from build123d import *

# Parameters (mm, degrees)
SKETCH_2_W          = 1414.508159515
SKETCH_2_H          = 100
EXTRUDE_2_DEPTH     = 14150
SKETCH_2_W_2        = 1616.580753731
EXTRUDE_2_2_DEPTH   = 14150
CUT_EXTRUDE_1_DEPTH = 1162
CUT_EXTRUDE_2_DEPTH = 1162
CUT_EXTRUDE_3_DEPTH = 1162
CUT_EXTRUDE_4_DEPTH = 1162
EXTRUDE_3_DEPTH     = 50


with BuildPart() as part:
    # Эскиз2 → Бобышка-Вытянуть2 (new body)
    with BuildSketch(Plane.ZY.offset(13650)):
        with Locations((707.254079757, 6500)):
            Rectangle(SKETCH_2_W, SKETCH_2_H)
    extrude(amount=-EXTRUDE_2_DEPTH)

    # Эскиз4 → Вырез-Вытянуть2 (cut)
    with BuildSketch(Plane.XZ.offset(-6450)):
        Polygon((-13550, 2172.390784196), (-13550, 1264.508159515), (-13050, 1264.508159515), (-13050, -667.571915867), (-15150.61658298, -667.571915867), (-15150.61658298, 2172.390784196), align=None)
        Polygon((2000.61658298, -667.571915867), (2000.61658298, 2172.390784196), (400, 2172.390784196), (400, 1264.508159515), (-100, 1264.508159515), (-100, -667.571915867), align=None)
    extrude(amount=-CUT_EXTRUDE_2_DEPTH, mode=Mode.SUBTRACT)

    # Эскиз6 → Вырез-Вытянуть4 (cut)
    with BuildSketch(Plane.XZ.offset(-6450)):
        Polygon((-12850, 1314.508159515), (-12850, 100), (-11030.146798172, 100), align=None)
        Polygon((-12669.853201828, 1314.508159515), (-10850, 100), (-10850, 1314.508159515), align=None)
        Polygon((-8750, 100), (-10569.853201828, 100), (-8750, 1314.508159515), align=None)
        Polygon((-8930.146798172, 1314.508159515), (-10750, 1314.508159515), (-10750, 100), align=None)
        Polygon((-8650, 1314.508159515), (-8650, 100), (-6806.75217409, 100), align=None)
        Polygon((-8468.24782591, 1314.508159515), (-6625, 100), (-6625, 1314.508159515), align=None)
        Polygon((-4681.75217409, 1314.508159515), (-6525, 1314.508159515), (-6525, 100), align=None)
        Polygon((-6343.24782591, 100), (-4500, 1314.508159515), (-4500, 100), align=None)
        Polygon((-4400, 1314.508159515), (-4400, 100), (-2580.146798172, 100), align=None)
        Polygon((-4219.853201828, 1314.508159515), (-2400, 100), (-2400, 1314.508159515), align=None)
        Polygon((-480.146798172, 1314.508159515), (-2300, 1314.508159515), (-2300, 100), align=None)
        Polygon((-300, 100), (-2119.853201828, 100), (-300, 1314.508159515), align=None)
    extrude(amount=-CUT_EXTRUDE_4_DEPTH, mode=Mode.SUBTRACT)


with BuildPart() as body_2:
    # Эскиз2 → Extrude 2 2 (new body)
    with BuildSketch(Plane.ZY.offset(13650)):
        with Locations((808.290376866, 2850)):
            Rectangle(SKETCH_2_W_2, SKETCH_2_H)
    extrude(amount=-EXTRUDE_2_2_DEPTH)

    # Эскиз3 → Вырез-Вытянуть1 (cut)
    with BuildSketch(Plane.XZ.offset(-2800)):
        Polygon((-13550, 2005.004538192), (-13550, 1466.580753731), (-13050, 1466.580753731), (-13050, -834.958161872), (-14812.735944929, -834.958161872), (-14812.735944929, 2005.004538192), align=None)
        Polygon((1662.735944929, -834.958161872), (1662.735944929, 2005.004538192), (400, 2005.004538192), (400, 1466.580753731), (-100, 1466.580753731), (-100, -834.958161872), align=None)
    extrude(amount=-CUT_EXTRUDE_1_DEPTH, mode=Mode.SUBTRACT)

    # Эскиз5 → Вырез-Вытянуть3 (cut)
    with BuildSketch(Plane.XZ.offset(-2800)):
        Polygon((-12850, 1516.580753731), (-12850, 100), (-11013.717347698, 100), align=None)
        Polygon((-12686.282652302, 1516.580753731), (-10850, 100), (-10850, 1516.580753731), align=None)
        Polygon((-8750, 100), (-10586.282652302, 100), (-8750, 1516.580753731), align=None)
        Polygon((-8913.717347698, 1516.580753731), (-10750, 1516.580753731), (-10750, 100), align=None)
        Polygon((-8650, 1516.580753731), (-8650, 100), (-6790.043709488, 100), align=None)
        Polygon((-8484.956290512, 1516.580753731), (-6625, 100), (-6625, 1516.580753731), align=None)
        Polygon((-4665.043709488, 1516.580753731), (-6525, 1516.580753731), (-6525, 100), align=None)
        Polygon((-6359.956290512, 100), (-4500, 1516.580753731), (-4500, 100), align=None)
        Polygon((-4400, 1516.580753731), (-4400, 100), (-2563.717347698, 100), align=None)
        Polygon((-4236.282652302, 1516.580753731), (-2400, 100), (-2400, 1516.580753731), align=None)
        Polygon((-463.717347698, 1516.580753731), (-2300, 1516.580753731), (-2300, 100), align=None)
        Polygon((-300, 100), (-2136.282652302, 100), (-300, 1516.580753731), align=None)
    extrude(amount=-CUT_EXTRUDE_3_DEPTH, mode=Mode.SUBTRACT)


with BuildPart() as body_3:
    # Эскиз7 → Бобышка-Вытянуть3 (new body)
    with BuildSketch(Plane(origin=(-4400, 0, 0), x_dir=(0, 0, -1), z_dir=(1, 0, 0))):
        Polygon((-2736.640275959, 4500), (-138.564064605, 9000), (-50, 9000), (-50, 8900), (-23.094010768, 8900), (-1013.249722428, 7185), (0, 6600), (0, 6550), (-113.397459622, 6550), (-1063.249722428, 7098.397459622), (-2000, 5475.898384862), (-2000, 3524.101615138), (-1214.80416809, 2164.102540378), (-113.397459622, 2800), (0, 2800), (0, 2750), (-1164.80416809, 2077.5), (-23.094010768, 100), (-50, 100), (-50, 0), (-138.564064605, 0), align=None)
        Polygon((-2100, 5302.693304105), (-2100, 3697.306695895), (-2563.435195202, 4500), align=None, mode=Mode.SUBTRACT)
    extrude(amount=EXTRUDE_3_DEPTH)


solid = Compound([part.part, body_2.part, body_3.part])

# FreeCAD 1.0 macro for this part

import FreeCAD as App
import Part
import Sketcher

V = App.Vector
Q = App.Units.Quantity

doc = App.newDocument("Part")
body = doc.addObject("PartDesign::Body", "Body")

# Sketch on YZ plane
sketch1 = body.newObject("Sketcher::SketchObject", "Sketch")
sketch1.AttachmentSupport = (doc.getObject("YZ_Plane"), [""])
sketch1.MapMode = "FlatFace"
sketch1.AttachmentOffset = App.Placement(V(0, 0, -13650), App.Rotation())
sketch1.addGeometry([
    Part.LineSegment(V(6550, 0, 0), V(6450, 0, 0)),
    Part.LineSegment(V(6450, 0, 0), V(6450, 1415, 0)),
    Part.LineSegment(V(6450, 1415, 0), V(6550, 1415, 0)),
    Part.LineSegment(V(6550, 1415, 0), V(6550, 0, 0)),
], False)
sketch1.addConstraint([
    Sketcher.Constraint("Coincident", 0, 2, 1, 1),
    Sketcher.Constraint("Coincident", 1, 2, 2, 1),
    Sketcher.Constraint("Coincident", 2, 2, 3, 1),
    Sketcher.Constraint("Coincident", 3, 2, 0, 1),
    Sketcher.Constraint("Horizontal", 0),
    Sketcher.Constraint("Vertical", 1),
    Sketcher.Constraint("Horizontal", 2),
    Sketcher.Constraint("Vertical", 3),
    Sketcher.Constraint("PointOnObject", 0, 2, -1),
    Sketcher.Constraint("DistanceX", 0, 2, 0, 1, Q("100 mm")),
    Sketcher.Constraint("DistanceX", -1, 1, 0, 2, Q("6450 mm")),
    Sketcher.Constraint("DistanceY", 1, 1, 1, 2, Q("1414.50816 mm")),
])
pad1 = body.newObject("PartDesign::Pad", "Pad")
pad1.Profile = sketch1
pad1.Length = 14150

# Sketch on XZ plane
sketch2 = body.newObject("Sketcher::SketchObject", "Sketch001")
sketch2.AttachmentSupport = (doc.getObject("XZ_Plane"), [""])
sketch2.MapMode = "FlatFace"
sketch2.AttachmentOffset = App.Placement(V(0, 0, -6450), App.Rotation())
sketch2.addGeometry([
    Part.LineSegment(V(-13550, 1265, 0), V(-13550, 2172, 0)),  # 0
    Part.LineSegment(V(-13550, 2172, 0), V(-15151, 2172, 0)),  # 1
    Part.LineSegment(V(-15151, 2172, 0), V(-15151, -668, 0)),  # 2
    Part.LineSegment(V(-15151, -668, 0), V(-13050, -668, 0)),  # 3
    Part.LineSegment(V(-13050, -668, 0), V(-13050, 1265, 0)),  # 4
    Part.LineSegment(V(-13050, 1265, 0), V(-13550, 1265, 0)),  # 5
    Part.LineSegment(V(2001, -668, 0), V(2001, 2172, 0)),  # 6
    Part.LineSegment(V(2001, 2172, 0), V(400, 2172, 0)),  # 7
    Part.LineSegment(V(400, 2172, 0), V(400, 1265, 0)),  # 8
    Part.LineSegment(V(400, 1265, 0), V(-100, 1265, 0)),  # 9
    Part.LineSegment(V(-100, 1265, 0), V(-100, -668, 0)),  # 10
    Part.LineSegment(V(-100, -668, 0), V(2001, -668, 0)),  # 11
], False)
sketch2.addConstraint([
    Sketcher.Constraint("Coincident", 0, 2, 1, 1),
    Sketcher.Constraint("Coincident", 1, 2, 2, 1),
    Sketcher.Constraint("Coincident", 2, 2, 3, 1),
    Sketcher.Constraint("Coincident", 3, 2, 4, 1),
    Sketcher.Constraint("Coincident", 4, 2, 5, 1),
    Sketcher.Constraint("Coincident", 5, 2, 0, 1),
    Sketcher.Constraint("Coincident", 6, 2, 7, 1),
    Sketcher.Constraint("Coincident", 7, 2, 8, 1),
    Sketcher.Constraint("Coincident", 8, 2, 9, 1),
    Sketcher.Constraint("Coincident", 9, 2, 10, 1),
    Sketcher.Constraint("Coincident", 10, 2, 11, 1),
    Sketcher.Constraint("Coincident", 11, 2, 6, 1),
    Sketcher.Constraint("Vertical", 0),
    Sketcher.Constraint("Horizontal", 1),
    Sketcher.Constraint("Vertical", 2),
    Sketcher.Constraint("Horizontal", 3),
    Sketcher.Constraint("Vertical", 4),
    Sketcher.Constraint("Horizontal", 5),
    Sketcher.Constraint("Vertical", 6),
    Sketcher.Constraint("Horizontal", 7),
    Sketcher.Constraint("Vertical", 8),
    Sketcher.Constraint("Horizontal", 9),
    Sketcher.Constraint("Vertical", 10),
    Sketcher.Constraint("Horizontal", 11),
    Sketcher.Constraint("Horizontal", 1, 2, 6, 2),
    Sketcher.Constraint("Horizontal", 5, 2, 8, 2),
    Sketcher.Constraint("Horizontal", 3, 2, 10, 2),
    Sketcher.Constraint("Equal", 1, 7),
    Sketcher.Constraint("Equal", 5, 9),
    Sketcher.Constraint("DistanceX", 5, 2, 5, 1, Q("500 mm")),
    Sketcher.Constraint("DistanceX", 0, 2, -1, 1, Q("13550 mm")),
    Sketcher.Constraint("DistanceX", -1, 1, 7, 2, Q("400 mm")),
    Sketcher.Constraint("DistanceY", 2, 2, 2, 1, Q("2839.9627 mm")),
    Sketcher.Constraint("DistanceX", 1, 2, 1, 1, Q("1600.616583 mm")),
    Sketcher.Constraint("DistanceY", 0, 1, 0, 2, Q("907.882625 mm")),
    Sketcher.Constraint("DistanceY", -1, 1, 4, 2, Q("1264.50816 mm")),
])
pocket1 = body.newObject("PartDesign::Pocket", "Pocket")
pocket1.Profile = sketch2
pocket1.Length = 1162

# Sketch on XZ plane
sketch3 = body.newObject("Sketcher::SketchObject", "Sketch002")
sketch3.AttachmentSupport = (doc.getObject("XZ_Plane"), [""])
sketch3.MapMode = "FlatFace"
sketch3.AttachmentOffset = App.Placement(V(0, 0, -6450), App.Rotation())
sketch3.addGeometry([
    Part.LineSegment(V(-12850, 1315, 0), V(-12850, 100, 0)),  # 0
    Part.LineSegment(V(-12850, 100, 0), V(-11030, 100, 0)),  # 1
    Part.LineSegment(V(-11030, 100, 0), V(-12850, 1315, 0)),  # 2
    Part.LineSegment(V(-12670, 1315, 0), V(-10850, 100, 0)),  # 3
    Part.LineSegment(V(-10850, 100, 0), V(-10850, 1315, 0)),  # 4
    Part.LineSegment(V(-10850, 1315, 0), V(-12670, 1315, 0)),  # 5
    Part.LineSegment(V(-10570, 100, 0), V(-8750, 100, 0)),  # 6
    Part.LineSegment(V(-8750, 100, 0), V(-8750, 1315, 0)),  # 7
    Part.LineSegment(V(-8750, 1315, 0), V(-10570, 100, 0)),  # 8
    Part.LineSegment(V(-8930, 1315, 0), V(-10750, 1315, 0)),  # 9
    Part.LineSegment(V(-10750, 1315, 0), V(-10750, 100, 0)),  # 10
    Part.LineSegment(V(-10750, 100, 0), V(-8930, 1315, 0)),  # 11
    Part.LineSegment(V(-8650, 1315, 0), V(-8650, 100, 0)),  # 12
    Part.LineSegment(V(-8650, 100, 0), V(-6807, 100, 0)),  # 13
    Part.LineSegment(V(-6807, 100, 0), V(-8650, 1315, 0)),  # 14
    Part.LineSegment(V(-8468, 1315, 0), V(-6625, 100, 0)),  # 15
    Part.LineSegment(V(-6625, 100, 0), V(-6625, 1315, 0)),  # 16
    Part.LineSegment(V(-6625, 1315, 0), V(-8468, 1315, 0)),  # 17
    Part.LineSegment(V(-4682, 1315, 0), V(-6525, 1315, 0)),  # 18
    Part.LineSegment(V(-6525, 1315, 0), V(-6525, 100, 0)),  # 19
    Part.LineSegment(V(-6525, 100, 0), V(-4682, 1315, 0)),  # 20
    Part.LineSegment(V(-4500, 1315, 0), V(-6343, 100, 0)),  # 21
    Part.LineSegment(V(-6343, 100, 0), V(-4500, 100, 0)),  # 22
    Part.LineSegment(V(-4500, 100, 0), V(-4500, 1315, 0)),  # 23
    Part.LineSegment(V(-4400, 1315, 0), V(-4400, 100, 0)),  # 24
    Part.LineSegment(V(-4400, 100, 0), V(-2580, 100, 0)),  # 25
    Part.LineSegment(V(-2580, 100, 0), V(-4400, 1315, 0)),  # 26
    Part.LineSegment(V(-4220, 1315, 0), V(-2400, 100, 0)),  # 27
    Part.LineSegment(V(-2400, 100, 0), V(-2400, 1315, 0)),  # 28
    Part.LineSegment(V(-2400, 1315, 0), V(-4220, 1315, 0)),  # 29
    Part.LineSegment(V(-480, 1315, 0), V(-2300, 1315, 0)),  # 30
    Part.LineSegment(V(-2300, 1315, 0), V(-2300, 100, 0)),  # 31
    Part.LineSegment(V(-2300, 100, 0), V(-480, 1315, 0)),  # 32
    Part.LineSegment(V(-2120, 100, 0), V(-300, 100, 0)),  # 33
    Part.LineSegment(V(-300, 100, 0), V(-300, 1315, 0)),  # 34
    Part.LineSegment(V(-300, 1315, 0), V(-2120, 100, 0)),  # 35
], False)
sketch3.addConstraint([
    Sketcher.Constraint("Coincident", 0, 2, 1, 1),
    Sketcher.Constraint("Coincident", 1, 2, 2, 1),
    Sketcher.Constraint("Coincident", 2, 2, 0, 1),
    Sketcher.Constraint("Coincident", 3, 2, 4, 1),
    Sketcher.Constraint("Coincident", 4, 2, 5, 1),
    Sketcher.Constraint("Coincident", 5, 2, 3, 1),
    Sketcher.Constraint("Coincident", 6, 2, 7, 1),
    Sketcher.Constraint("Coincident", 7, 2, 8, 1),
    Sketcher.Constraint("Coincident", 8, 2, 6, 1),
    Sketcher.Constraint("Coincident", 9, 2, 10, 1),
    Sketcher.Constraint("Coincident", 10, 2, 11, 1),
    Sketcher.Constraint("Coincident", 11, 2, 9, 1),
    Sketcher.Constraint("Coincident", 12, 2, 13, 1),
    Sketcher.Constraint("Coincident", 13, 2, 14, 1),
    Sketcher.Constraint("Coincident", 14, 2, 12, 1),
    Sketcher.Constraint("Coincident", 15, 2, 16, 1),
    Sketcher.Constraint("Coincident", 16, 2, 17, 1),
    Sketcher.Constraint("Coincident", 17, 2, 15, 1),
    Sketcher.Constraint("Coincident", 18, 2, 19, 1),
    Sketcher.Constraint("Coincident", 19, 2, 20, 1),
    Sketcher.Constraint("Coincident", 20, 2, 18, 1),
    Sketcher.Constraint("Coincident", 21, 2, 22, 1),
    Sketcher.Constraint("Coincident", 22, 2, 23, 1),
    Sketcher.Constraint("Coincident", 23, 2, 21, 1),
    Sketcher.Constraint("Coincident", 24, 2, 25, 1),
    Sketcher.Constraint("Coincident", 25, 2, 26, 1),
    Sketcher.Constraint("Coincident", 26, 2, 24, 1),
    Sketcher.Constraint("Coincident", 27, 2, 28, 1),
    Sketcher.Constraint("Coincident", 28, 2, 29, 1),
    Sketcher.Constraint("Coincident", 29, 2, 27, 1),
    Sketcher.Constraint("Coincident", 30, 2, 31, 1),
    Sketcher.Constraint("Coincident", 31, 2, 32, 1),
    Sketcher.Constraint("Coincident", 32, 2, 30, 1),
    Sketcher.Constraint("Coincident", 33, 2, 34, 1),
    Sketcher.Constraint("Coincident", 34, 2, 35, 1),
    Sketcher.Constraint("Coincident", 35, 2, 33, 1),
    Sketcher.Constraint("Vertical", 0),
    Sketcher.Constraint("Horizontal", 1),
    Sketcher.Constraint("Vertical", 4),
    Sketcher.Constraint("Horizontal", 5),
    Sketcher.Constraint("Horizontal", 6),
    Sketcher.Constraint("Vertical", 7),
    Sketcher.Constraint("Horizontal", 9),
    Sketcher.Constraint("Vertical", 10),
    Sketcher.Constraint("Vertical", 12),
    Sketcher.Constraint("Horizontal", 13),
    Sketcher.Constraint("Vertical", 16),
    Sketcher.Constraint("Horizontal", 17),
    Sketcher.Constraint("Horizontal", 18),
    Sketcher.Constraint("Vertical", 19),
    Sketcher.Constraint("Horizontal", 22),
    Sketcher.Constraint("Vertical", 23),
    Sketcher.Constraint("Vertical", 24),
    Sketcher.Constraint("Horizontal", 25),
    Sketcher.Constraint("Vertical", 28),
    Sketcher.Constraint("Horizontal", 29),
    Sketcher.Constraint("Horizontal", 30),
    Sketcher.Constraint("Vertical", 31),
    Sketcher.Constraint("Horizontal", 33),
    Sketcher.Constraint("Vertical", 34),
    Sketcher.Constraint("Parallel", 2, 3),
    Sketcher.Constraint("Parallel", 8, 11),
    Sketcher.Constraint("Parallel", 14, 15),
    Sketcher.Constraint("Parallel", 20, 21),
    Sketcher.Constraint("Parallel", 3, 26),
    Sketcher.Constraint("Parallel", 26, 27),
    Sketcher.Constraint("Parallel", 11, 32),
    Sketcher.Constraint("Parallel", 32, 35),
    Sketcher.Constraint("Horizontal", 1, 2, 3, 2),
    Sketcher.Constraint("Horizontal", 2, 2, 4, 2),
    Sketcher.Constraint("Horizontal", 3, 2, 6, 2),
    Sketcher.Constraint("Horizontal", 5, 2, 7, 2),
    Sketcher.Constraint("Horizontal", 7, 2, 9, 2),
    Sketcher.Constraint("Horizontal", 8, 2, 10, 2),
    Sketcher.Constraint("Horizontal", 10, 2, 12, 2),
    Sketcher.Constraint("Horizontal", 11, 2, 14, 2),
    Sketcher.Constraint("Horizontal", 13, 2, 15, 2),
    Sketcher.Constraint("Horizontal", 14, 2, 16, 2),
    Sketcher.Constraint("Horizontal", 17, 2, 18, 2),
    Sketcher.Constraint("Horizontal", 15, 2, 19, 2),
    Sketcher.Constraint("Horizontal", 19, 2, 21, 2),
    Sketcher.Constraint("Horizontal", 20, 2, 23, 2),
    Sketcher.Constraint("Horizontal", 22, 2, 24, 2),
    Sketcher.Constraint("Horizontal", 23, 2, 26, 2),
    Sketcher.Constraint("Horizontal", 25, 2, 27, 2),
    Sketcher.Constraint("Horizontal", 26, 2, 28, 2),
    Sketcher.Constraint("Horizontal", 29, 2, 30, 2),
    Sketcher.Constraint("Horizontal", 27, 2, 31, 2),
    Sketcher.Constraint("Horizontal", 31, 2, 33, 2),
    Sketcher.Constraint("Horizontal", 32, 2, 34, 2),
    Sketcher.Constraint("Equal", 5, 6),
    Sketcher.Constraint("Equal", 17, 18),
    Sketcher.Constraint("DistanceX", 0, 2, -1, 1, Q("12850 mm")),
    Sketcher.Constraint("DistanceY", -1, 1, 0, 2, Q("100 mm")),
    Sketcher.Constraint("DistanceX", 3, 2, -1, 1, Q("10850 mm")),
    Sketcher.Constraint("DistanceX", 6, 2, -1, 1, Q("8750 mm")),
    Sketcher.Constraint("DistanceX", 9, 2, -1, 1, Q("10750 mm")),
    Sketcher.Constraint("DistanceX", 12, 2, -1, 1, Q("8650 mm")),
    Sketcher.Constraint("DistanceX", 15, 2, -1, 1, Q("6625 mm")),
    Sketcher.Constraint("DistanceX", 18, 2, -1, 1, Q("6525 mm")),
    Sketcher.Constraint("DistanceX", 22, 2, -1, 1, Q("4500 mm")),
    Sketcher.Constraint("DistanceX", 24, 2, -1, 1, Q("4400 mm")),
    Sketcher.Constraint("DistanceX", 27, 2, -1, 1, Q("2400 mm")),
    Sketcher.Constraint("DistanceX", 30, 2, -1, 1, Q("2300 mm")),
    Sketcher.Constraint("DistanceX", 33, 2, -1, 1, Q("300 mm")),
    Sketcher.Constraint("DistanceX", 1, 1, 1, 2, Q("1819.853202 mm")),
    Sketcher.Constraint("DistanceY", 0, 2, 0, 1, Q("1214.50816 mm")),
    Sketcher.Constraint("DistanceX", 13, 1, 13, 2, Q("1843.247826 mm")),
])
pocket2 = body.newObject("PartDesign::Pocket", "Pocket001")
pocket2.Profile = sketch3
pocket2.Length = 1162
body2 = doc.addObject("PartDesign::Body", "Body001")

# Sketch on YZ plane
sketch4 = body2.newObject("Sketcher::SketchObject", "Sketch003")
sketch4.AttachmentSupport = (doc.getObject("YZ_Plane001"), [""])
sketch4.MapMode = "FlatFace"
sketch4.AttachmentOffset = App.Placement(V(0, 0, -13650), App.Rotation())
sketch4.addGeometry([
    Part.LineSegment(V(2900, 0, 0), V(2800, 0, 0)),
    Part.LineSegment(V(2800, 0, 0), V(2800, 1617, 0)),
    Part.LineSegment(V(2800, 1617, 0), V(2900, 1617, 0)),
    Part.LineSegment(V(2900, 1617, 0), V(2900, 0, 0)),
], False)
sketch4.addConstraint([
    Sketcher.Constraint("Coincident", 0, 2, 1, 1),
    Sketcher.Constraint("Coincident", 1, 2, 2, 1),
    Sketcher.Constraint("Coincident", 2, 2, 3, 1),
    Sketcher.Constraint("Coincident", 3, 2, 0, 1),
    Sketcher.Constraint("Horizontal", 0),
    Sketcher.Constraint("Vertical", 1),
    Sketcher.Constraint("Horizontal", 2),
    Sketcher.Constraint("Vertical", 3),
    Sketcher.Constraint("PointOnObject", 0, 2, -1),
    Sketcher.Constraint("DistanceX", 0, 2, 0, 1, Q("100 mm")),
    Sketcher.Constraint("DistanceX", -1, 1, 0, 2, Q("2800 mm")),
    Sketcher.Constraint("DistanceY", 1, 1, 1, 2, Q("1616.580754 mm")),
])
pad2 = body2.newObject("PartDesign::Pad", "Pad001")
pad2.Profile = sketch4
pad2.Length = 14150

# Sketch on XZ plane
sketch5 = body2.newObject("Sketcher::SketchObject", "Sketch004")
sketch5.AttachmentSupport = (doc.getObject("XZ_Plane001"), [""])
sketch5.MapMode = "FlatFace"
sketch5.AttachmentOffset = App.Placement(V(0, 0, -2800), App.Rotation())
sketch5.addGeometry([
    Part.LineSegment(V(-13550, 1467, 0), V(-13550, 2005, 0)),  # 0
    Part.LineSegment(V(-13550, 2005, 0), V(-14813, 2005, 0)),  # 1
    Part.LineSegment(V(-14813, 2005, 0), V(-14813, -835, 0)),  # 2
    Part.LineSegment(V(-14813, -835, 0), V(-13050, -835, 0)),  # 3
    Part.LineSegment(V(-13050, -835, 0), V(-13050, 1467, 0)),  # 4
    Part.LineSegment(V(-13050, 1467, 0), V(-13550, 1467, 0)),  # 5
    Part.LineSegment(V(1663, -835, 0), V(1663, 2005, 0)),  # 6
    Part.LineSegment(V(1663, 2005, 0), V(400, 2005, 0)),  # 7
    Part.LineSegment(V(400, 2005, 0), V(400, 1467, 0)),  # 8
    Part.LineSegment(V(400, 1467, 0), V(-100, 1467, 0)),  # 9
    Part.LineSegment(V(-100, 1467, 0), V(-100, -835, 0)),  # 10
    Part.LineSegment(V(-100, -835, 0), V(1663, -835, 0)),  # 11
], False)
sketch5.addConstraint([
    Sketcher.Constraint("Coincident", 0, 2, 1, 1),
    Sketcher.Constraint("Coincident", 1, 2, 2, 1),
    Sketcher.Constraint("Coincident", 2, 2, 3, 1),
    Sketcher.Constraint("Coincident", 3, 2, 4, 1),
    Sketcher.Constraint("Coincident", 4, 2, 5, 1),
    Sketcher.Constraint("Coincident", 5, 2, 0, 1),
    Sketcher.Constraint("Coincident", 6, 2, 7, 1),
    Sketcher.Constraint("Coincident", 7, 2, 8, 1),
    Sketcher.Constraint("Coincident", 8, 2, 9, 1),
    Sketcher.Constraint("Coincident", 9, 2, 10, 1),
    Sketcher.Constraint("Coincident", 10, 2, 11, 1),
    Sketcher.Constraint("Coincident", 11, 2, 6, 1),
    Sketcher.Constraint("Vertical", 0),
    Sketcher.Constraint("Horizontal", 1),
    Sketcher.Constraint("Vertical", 2),
    Sketcher.Constraint("Horizontal", 3),
    Sketcher.Constraint("Vertical", 4),
    Sketcher.Constraint("Horizontal", 5),
    Sketcher.Constraint("Vertical", 6),
    Sketcher.Constraint("Horizontal", 7),
    Sketcher.Constraint("Vertical", 8),
    Sketcher.Constraint("Horizontal", 9),
    Sketcher.Constraint("Vertical", 10),
    Sketcher.Constraint("Horizontal", 11),
    Sketcher.Constraint("Horizontal", 1, 2, 6, 2),
    Sketcher.Constraint("Horizontal", 5, 2, 8, 2),
    Sketcher.Constraint("Horizontal", 3, 2, 10, 2),
    Sketcher.Constraint("Equal", 1, 7),
    Sketcher.Constraint("Equal", 5, 9),
    Sketcher.Constraint("DistanceX", 5, 2, 5, 1, Q("500 mm")),
    Sketcher.Constraint("DistanceX", 0, 2, -1, 1, Q("13550 mm")),
    Sketcher.Constraint("DistanceX", -1, 1, 7, 2, Q("400 mm")),
    Sketcher.Constraint("DistanceY", 2, 2, 2, 1, Q("2839.9627 mm")),
    Sketcher.Constraint("DistanceX", 1, 2, 1, 1, Q("1262.735945 mm")),
    Sketcher.Constraint("DistanceY", 0, 1, 0, 2, Q("538.423784 mm")),
    Sketcher.Constraint("DistanceY", -1, 1, 0, 2, Q("2005.004538 mm")),
])
pocket3 = body2.newObject("PartDesign::Pocket", "Pocket002")
pocket3.Profile = sketch5
pocket3.Length = 1162

# Sketch on XZ plane
sketch6 = body2.newObject("Sketcher::SketchObject", "Sketch005")
sketch6.AttachmentSupport = (doc.getObject("XZ_Plane001"), [""])
sketch6.MapMode = "FlatFace"
sketch6.AttachmentOffset = App.Placement(V(0, 0, -2800), App.Rotation())
sketch6.addGeometry([
    Part.LineSegment(V(-12850, 1517, 0), V(-12850, 100, 0)),  # 0
    Part.LineSegment(V(-12850, 100, 0), V(-11014, 100, 0)),  # 1
    Part.LineSegment(V(-11014, 100, 0), V(-12850, 1517, 0)),  # 2
    Part.LineSegment(V(-12686, 1517, 0), V(-10850, 100, 0)),  # 3
    Part.LineSegment(V(-10850, 100, 0), V(-10850, 1517, 0)),  # 4
    Part.LineSegment(V(-10850, 1517, 0), V(-12686, 1517, 0)),  # 5
    Part.LineSegment(V(-10586, 100, 0), V(-8750, 100, 0)),  # 6
    Part.LineSegment(V(-8750, 100, 0), V(-8750, 1517, 0)),  # 7
    Part.LineSegment(V(-8750, 1517, 0), V(-10586, 100, 0)),  # 8
    Part.LineSegment(V(-8914, 1517, 0), V(-10750, 1517, 0)),  # 9
    Part.LineSegment(V(-10750, 1517, 0), V(-10750, 100, 0)),  # 10
    Part.LineSegment(V(-10750, 100, 0), V(-8914, 1517, 0)),  # 11
    Part.LineSegment(V(-8650, 1517, 0), V(-8650, 100, 0)),  # 12
    Part.LineSegment(V(-8650, 100, 0), V(-6790, 100, 0)),  # 13
    Part.LineSegment(V(-6790, 100, 0), V(-8650, 1517, 0)),  # 14
    Part.LineSegment(V(-8485, 1517, 0), V(-6625, 100, 0)),  # 15
    Part.LineSegment(V(-6625, 100, 0), V(-6625, 1517, 0)),  # 16
    Part.LineSegment(V(-6625, 1517, 0), V(-8485, 1517, 0)),  # 17
    Part.LineSegment(V(-4665, 1517, 0), V(-6525, 1517, 0)),  # 18
    Part.LineSegment(V(-6525, 1517, 0), V(-6525, 100, 0)),  # 19
    Part.LineSegment(V(-6525, 100, 0), V(-4665, 1517, 0)),  # 20
    Part.LineSegment(V(-4500, 1517, 0), V(-6360, 100, 0)),  # 21
    Part.LineSegment(V(-6360, 100, 0), V(-4500, 100, 0)),  # 22
    Part.LineSegment(V(-4500, 100, 0), V(-4500, 1517, 0)),  # 23
    Part.LineSegment(V(-4400, 1517, 0), V(-4400, 100, 0)),  # 24
    Part.LineSegment(V(-4400, 100, 0), V(-2564, 100, 0)),  # 25
    Part.LineSegment(V(-2564, 100, 0), V(-4400, 1517, 0)),  # 26
    Part.LineSegment(V(-4236, 1517, 0), V(-2400, 100, 0)),  # 27
    Part.LineSegment(V(-2400, 100, 0), V(-2400, 1517, 0)),  # 28
    Part.LineSegment(V(-2400, 1517, 0), V(-4236, 1517, 0)),  # 29
    Part.LineSegment(V(-464, 1517, 0), V(-2300, 1517, 0)),  # 30
    Part.LineSegment(V(-2300, 1517, 0), V(-2300, 100, 0)),  # 31
    Part.LineSegment(V(-2300, 100, 0), V(-464, 1517, 0)),  # 32
    Part.LineSegment(V(-2136, 100, 0), V(-300, 100, 0)),  # 33
    Part.LineSegment(V(-300, 100, 0), V(-300, 1517, 0)),  # 34
    Part.LineSegment(V(-300, 1517, 0), V(-2136, 100, 0)),  # 35
], False)
sketch6.addConstraint([
    Sketcher.Constraint("Coincident", 0, 2, 1, 1),
    Sketcher.Constraint("Coincident", 1, 2, 2, 1),
    Sketcher.Constraint("Coincident", 2, 2, 0, 1),
    Sketcher.Constraint("Coincident", 3, 2, 4, 1),
    Sketcher.Constraint("Coincident", 4, 2, 5, 1),
    Sketcher.Constraint("Coincident", 5, 2, 3, 1),
    Sketcher.Constraint("Coincident", 6, 2, 7, 1),
    Sketcher.Constraint("Coincident", 7, 2, 8, 1),
    Sketcher.Constraint("Coincident", 8, 2, 6, 1),
    Sketcher.Constraint("Coincident", 9, 2, 10, 1),
    Sketcher.Constraint("Coincident", 10, 2, 11, 1),
    Sketcher.Constraint("Coincident", 11, 2, 9, 1),
    Sketcher.Constraint("Coincident", 12, 2, 13, 1),
    Sketcher.Constraint("Coincident", 13, 2, 14, 1),
    Sketcher.Constraint("Coincident", 14, 2, 12, 1),
    Sketcher.Constraint("Coincident", 15, 2, 16, 1),
    Sketcher.Constraint("Coincident", 16, 2, 17, 1),
    Sketcher.Constraint("Coincident", 17, 2, 15, 1),
    Sketcher.Constraint("Coincident", 18, 2, 19, 1),
    Sketcher.Constraint("Coincident", 19, 2, 20, 1),
    Sketcher.Constraint("Coincident", 20, 2, 18, 1),
    Sketcher.Constraint("Coincident", 21, 2, 22, 1),
    Sketcher.Constraint("Coincident", 22, 2, 23, 1),
    Sketcher.Constraint("Coincident", 23, 2, 21, 1),
    Sketcher.Constraint("Coincident", 24, 2, 25, 1),
    Sketcher.Constraint("Coincident", 25, 2, 26, 1),
    Sketcher.Constraint("Coincident", 26, 2, 24, 1),
    Sketcher.Constraint("Coincident", 27, 2, 28, 1),
    Sketcher.Constraint("Coincident", 28, 2, 29, 1),
    Sketcher.Constraint("Coincident", 29, 2, 27, 1),
    Sketcher.Constraint("Coincident", 30, 2, 31, 1),
    Sketcher.Constraint("Coincident", 31, 2, 32, 1),
    Sketcher.Constraint("Coincident", 32, 2, 30, 1),
    Sketcher.Constraint("Coincident", 33, 2, 34, 1),
    Sketcher.Constraint("Coincident", 34, 2, 35, 1),
    Sketcher.Constraint("Coincident", 35, 2, 33, 1),
    Sketcher.Constraint("Vertical", 0),
    Sketcher.Constraint("Horizontal", 1),
    Sketcher.Constraint("Vertical", 4),
    Sketcher.Constraint("Horizontal", 5),
    Sketcher.Constraint("Horizontal", 6),
    Sketcher.Constraint("Vertical", 7),
    Sketcher.Constraint("Horizontal", 9),
    Sketcher.Constraint("Vertical", 10),
    Sketcher.Constraint("Vertical", 12),
    Sketcher.Constraint("Horizontal", 13),
    Sketcher.Constraint("Vertical", 16),
    Sketcher.Constraint("Horizontal", 17),
    Sketcher.Constraint("Horizontal", 18),
    Sketcher.Constraint("Vertical", 19),
    Sketcher.Constraint("Horizontal", 22),
    Sketcher.Constraint("Vertical", 23),
    Sketcher.Constraint("Vertical", 24),
    Sketcher.Constraint("Horizontal", 25),
    Sketcher.Constraint("Vertical", 28),
    Sketcher.Constraint("Horizontal", 29),
    Sketcher.Constraint("Horizontal", 30),
    Sketcher.Constraint("Vertical", 31),
    Sketcher.Constraint("Horizontal", 33),
    Sketcher.Constraint("Vertical", 34),
    Sketcher.Constraint("Parallel", 2, 3),
    Sketcher.Constraint("Parallel", 8, 11),
    Sketcher.Constraint("Parallel", 14, 15),
    Sketcher.Constraint("Parallel", 20, 21),
    Sketcher.Constraint("Parallel", 3, 26),
    Sketcher.Constraint("Parallel", 26, 27),
    Sketcher.Constraint("Parallel", 11, 32),
    Sketcher.Constraint("Parallel", 32, 35),
    Sketcher.Constraint("Horizontal", 1, 2, 3, 2),
    Sketcher.Constraint("Horizontal", 2, 2, 4, 2),
    Sketcher.Constraint("Horizontal", 3, 2, 6, 2),
    Sketcher.Constraint("Horizontal", 5, 2, 7, 2),
    Sketcher.Constraint("Horizontal", 7, 2, 9, 2),
    Sketcher.Constraint("Horizontal", 8, 2, 10, 2),
    Sketcher.Constraint("Horizontal", 10, 2, 12, 2),
    Sketcher.Constraint("Horizontal", 11, 2, 14, 2),
    Sketcher.Constraint("Horizontal", 13, 2, 15, 2),
    Sketcher.Constraint("Horizontal", 14, 2, 16, 2),
    Sketcher.Constraint("Horizontal", 17, 2, 18, 2),
    Sketcher.Constraint("Horizontal", 15, 2, 19, 2),
    Sketcher.Constraint("Horizontal", 19, 2, 21, 2),
    Sketcher.Constraint("Horizontal", 20, 2, 23, 2),
    Sketcher.Constraint("Horizontal", 22, 2, 24, 2),
    Sketcher.Constraint("Horizontal", 23, 2, 26, 2),
    Sketcher.Constraint("Horizontal", 25, 2, 27, 2),
    Sketcher.Constraint("Horizontal", 26, 2, 28, 2),
    Sketcher.Constraint("Horizontal", 29, 2, 30, 2),
    Sketcher.Constraint("Horizontal", 27, 2, 31, 2),
    Sketcher.Constraint("Horizontal", 31, 2, 33, 2),
    Sketcher.Constraint("Horizontal", 32, 2, 34, 2),
    Sketcher.Constraint("Equal", 5, 6),
    Sketcher.Constraint("Equal", 17, 18),
    Sketcher.Constraint("DistanceX", 0, 2, -1, 1, Q("12850 mm")),
    Sketcher.Constraint("DistanceY", -1, 1, 0, 2, Q("100 mm")),
    Sketcher.Constraint("DistanceX", 3, 2, -1, 1, Q("10850 mm")),
    Sketcher.Constraint("DistanceX", 6, 2, -1, 1, Q("8750 mm")),
    Sketcher.Constraint("DistanceX", 9, 2, -1, 1, Q("10750 mm")),
    Sketcher.Constraint("DistanceX", 12, 2, -1, 1, Q("8650 mm")),
    Sketcher.Constraint("DistanceX", 15, 2, -1, 1, Q("6625 mm")),
    Sketcher.Constraint("DistanceX", 18, 2, -1, 1, Q("6525 mm")),
    Sketcher.Constraint("DistanceX", 22, 2, -1, 1, Q("4500 mm")),
    Sketcher.Constraint("DistanceX", 24, 2, -1, 1, Q("4400 mm")),
    Sketcher.Constraint("DistanceX", 27, 2, -1, 1, Q("2400 mm")),
    Sketcher.Constraint("DistanceX", 30, 2, -1, 1, Q("2300 mm")),
    Sketcher.Constraint("DistanceX", 33, 2, -1, 1, Q("300 mm")),
    Sketcher.Constraint("DistanceX", 13, 1, 13, 2, Q("1859.956291 mm")),
    Sketcher.Constraint("Distance", 2, Q("2319.188438 mm")),
    Sketcher.Constraint("DistanceX", 1, 1, 1, 2, Q("1836.282652 mm")),
])
pocket4 = body2.newObject("PartDesign::Pocket", "Pocket003")
pocket4.Profile = sketch6
pocket4.Length = 1162
body3 = doc.addObject("PartDesign::Body", "Body002")

# Sketch on YZ plane
sketch7 = body3.newObject("Sketcher::SketchObject", "Sketch006")
sketch7.AttachmentSupport = (doc.getObject("YZ_Plane002"), [""])
sketch7.MapMode = "FlatFace"
sketch7.AttachmentOffset = App.Placement(V(0, 0, -4400), App.Rotation())
sketch7.addGeometry([
    Part.LineSegment(V(9000, 139, 0), V(4500, 2737, 0)),  # 0
    Part.LineSegment(V(4500, 2737, 0), V(0, 139, 0)),  # 1
    Part.LineSegment(V(0, 139, 0), V(0, 50, 0)),  # 2
    Part.LineSegment(V(0, 50, 0), V(100, 50, 0)),  # 3
    Part.LineSegment(V(100, 50, 0), V(100, 23, 0)),  # 4
    Part.LineSegment(V(100, 23, 0), V(2078, 1165, 0)),  # 5
    Part.LineSegment(V(2078, 1165, 0), V(2750, 0, 0)),  # 6
    Part.LineSegment(V(2750, 0, 0), V(2800, 0, 0)),  # 7
    Part.LineSegment(V(2800, 0, 0), V(2800, 113, 0)),  # 8
    Part.LineSegment(V(2800, 113, 0), V(2164, 1215, 0)),  # 9
    Part.LineSegment(V(2164, 1215, 0), V(3524, 2000, 0)),  # 10
    Part.LineSegment(V(3524, 2000, 0), V(5476, 2000, 0)),  # 11
    Part.LineSegment(V(5476, 2000, 0), V(7098, 1063, 0)),  # 12
    Part.LineSegment(V(7098, 1063, 0), V(6550, 113, 0)),  # 13
    Part.LineSegment(V(6550, 113, 0), V(6550, 0, 0)),  # 14
    Part.LineSegment(V(6550, 0, 0), V(6600, 0, 0)),  # 15
    Part.LineSegment(V(6600, 0, 0), V(7185, 1013, 0)),  # 16
    Part.LineSegment(V(7185, 1013, 0), V(8900, 23, 0)),  # 17
    Part.LineSegment(V(8900, 23, 0), V(8900, 50, 0)),  # 18
    Part.LineSegment(V(8900, 50, 0), V(9000, 50, 0)),  # 19
    Part.LineSegment(V(9000, 50, 0), V(9000, 139, 0)),  # 20
    Part.LineSegment(V(5303, 2100, 0), V(3697, 2100, 0)),  # 21
    Part.LineSegment(V(3697, 2100, 0), V(4500, 2563, 0)),  # 22
    Part.LineSegment(V(4500, 2563, 0), V(5303, 2100, 0)),  # 23
], False)
sketch7.addConstraint([
    Sketcher.Constraint("Coincident", 0, 2, 1, 1),
    Sketcher.Constraint("Coincident", 1, 2, 2, 1),
    Sketcher.Constraint("Coincident", 2, 2, 3, 1),
    Sketcher.Constraint("Coincident", 3, 2, 4, 1),
    Sketcher.Constraint("Coincident", 4, 2, 5, 1),
    Sketcher.Constraint("Coincident", 5, 2, 6, 1),
    Sketcher.Constraint("Coincident", 6, 2, 7, 1),
    Sketcher.Constraint("Coincident", 7, 2, 8, 1),
    Sketcher.Constraint("Coincident", 8, 2, 9, 1),
    Sketcher.Constraint("Coincident", 9, 2, 10, 1),
    Sketcher.Constraint("Coincident", 10, 2, 11, 1),
    Sketcher.Constraint("Coincident", 11, 2, 12, 1),
    Sketcher.Constraint("Coincident", 12, 2, 13, 1),
    Sketcher.Constraint("Coincident", 13, 2, 14, 1),
    Sketcher.Constraint("Coincident", 14, 2, 15, 1),
    Sketcher.Constraint("Coincident", 15, 2, 16, 1),
    Sketcher.Constraint("Coincident", 16, 2, 17, 1),
    Sketcher.Constraint("Coincident", 17, 2, 18, 1),
    Sketcher.Constraint("Coincident", 18, 2, 19, 1),
    Sketcher.Constraint("Coincident", 19, 2, 20, 1),
    Sketcher.Constraint("Coincident", 20, 2, 0, 1),
    Sketcher.Constraint("Coincident", 21, 2, 22, 1),
    Sketcher.Constraint("Coincident", 22, 2, 23, 1),
    Sketcher.Constraint("Coincident", 23, 2, 21, 1),
    Sketcher.Constraint("Vertical", 2),
    Sketcher.Constraint("Horizontal", 3),
    Sketcher.Constraint("Vertical", 4),
    Sketcher.Constraint("Horizontal", 7),
    Sketcher.Constraint("Vertical", 8),
    Sketcher.Constraint("Horizontal", 11),
    Sketcher.Constraint("Vertical", 14),
    Sketcher.Constraint("Horizontal", 15),
    Sketcher.Constraint("Vertical", 18),
    Sketcher.Constraint("Horizontal", 19),
    Sketcher.Constraint("Vertical", 20),
    Sketcher.Constraint("Horizontal", 21),
    Sketcher.Constraint("PointOnObject", 1, 2, -2),
    Sketcher.Constraint("PointOnObject", 6, 2, -1),
    Sketcher.Constraint("PointOnObject", 14, 2, -1),
    Sketcher.Constraint("Parallel", 1, 5),
    Sketcher.Constraint("Perpendicular", 5, 6),
    Sketcher.Constraint("Parallel", 6, 9),
    Sketcher.Constraint("Perpendicular", 9, 10),
    Sketcher.Constraint("Parallel", 0, 12),
    Sketcher.Constraint("Perpendicular", 12, 13),
    Sketcher.Constraint("Parallel", 13, 16),
    Sketcher.Constraint("Perpendicular", 16, 17),
    Sketcher.Constraint("Parallel", 10, 22),
    Sketcher.Constraint("Parallel", 17, 23),
    Sketcher.Constraint("Horizontal", 8, 2, 13, 2),
    Sketcher.Constraint("Horizontal", 4, 2, 17, 2),
    Sketcher.Constraint("Horizontal", 3, 2, 18, 2),
    Sketcher.Constraint("Horizontal", 1, 2, 20, 2),
    Sketcher.Constraint("Vertical", 0, 2, 22, 2),
    Sketcher.Constraint("Equal", 7, 15),
    Sketcher.Constraint("Equal", 3, 19),
    Sketcher.Constraint("Equal", 0, 1),
    Sketcher.Constraint("DistanceX", 3, 1, 3, 2, Q("100 mm")),
    Sketcher.Constraint("DistanceX", 7, 1, 7, 2, Q("50 mm")),
    Sketcher.Constraint("Angle", 0, Q("150 deg")),
    Sketcher.Constraint("Distance", 6, Q("1345 mm")),
    Sketcher.Constraint("Distance", 16, Q("1170 mm")),
    Sketcher.Constraint("DistanceX", -1, 1, 0, 2, Q("4500 mm")),
    Sketcher.Constraint("DistanceY", -1, 1, 2, 2, Q("50 mm")),
    Sketcher.Constraint("DistanceX", -1, 1, 6, 2, Q("2750 mm")),
    Sketcher.Constraint("DistanceY", -1, 1, 10, 2, Q("2000 mm")),
    Sketcher.Constraint("DistanceY", -1, 1, 21, 2, Q("2100 mm")),
    Sketcher.Constraint("DistanceY", 5, 2, 9, 2, Q("50 mm")),
    Sketcher.Constraint("DistanceY", 16, 2, 12, 2, Q("50 mm")),
    Sketcher.Constraint("DistanceX", 11, 1, 11, 2, Q("1951.79677 mm")),
    Sketcher.Constraint("DistanceX", 21, 2, 21, 1, Q("1605.386608 mm")),
    Sketcher.Constraint("DistanceY", 2, 2, 2, 1, Q("88.564065 mm")),
])
pad3 = body3.newObject("PartDesign::Pad", "Pad002")
pad3.Profile = sketch7
pad3.Length = 50

doc.recompute()
